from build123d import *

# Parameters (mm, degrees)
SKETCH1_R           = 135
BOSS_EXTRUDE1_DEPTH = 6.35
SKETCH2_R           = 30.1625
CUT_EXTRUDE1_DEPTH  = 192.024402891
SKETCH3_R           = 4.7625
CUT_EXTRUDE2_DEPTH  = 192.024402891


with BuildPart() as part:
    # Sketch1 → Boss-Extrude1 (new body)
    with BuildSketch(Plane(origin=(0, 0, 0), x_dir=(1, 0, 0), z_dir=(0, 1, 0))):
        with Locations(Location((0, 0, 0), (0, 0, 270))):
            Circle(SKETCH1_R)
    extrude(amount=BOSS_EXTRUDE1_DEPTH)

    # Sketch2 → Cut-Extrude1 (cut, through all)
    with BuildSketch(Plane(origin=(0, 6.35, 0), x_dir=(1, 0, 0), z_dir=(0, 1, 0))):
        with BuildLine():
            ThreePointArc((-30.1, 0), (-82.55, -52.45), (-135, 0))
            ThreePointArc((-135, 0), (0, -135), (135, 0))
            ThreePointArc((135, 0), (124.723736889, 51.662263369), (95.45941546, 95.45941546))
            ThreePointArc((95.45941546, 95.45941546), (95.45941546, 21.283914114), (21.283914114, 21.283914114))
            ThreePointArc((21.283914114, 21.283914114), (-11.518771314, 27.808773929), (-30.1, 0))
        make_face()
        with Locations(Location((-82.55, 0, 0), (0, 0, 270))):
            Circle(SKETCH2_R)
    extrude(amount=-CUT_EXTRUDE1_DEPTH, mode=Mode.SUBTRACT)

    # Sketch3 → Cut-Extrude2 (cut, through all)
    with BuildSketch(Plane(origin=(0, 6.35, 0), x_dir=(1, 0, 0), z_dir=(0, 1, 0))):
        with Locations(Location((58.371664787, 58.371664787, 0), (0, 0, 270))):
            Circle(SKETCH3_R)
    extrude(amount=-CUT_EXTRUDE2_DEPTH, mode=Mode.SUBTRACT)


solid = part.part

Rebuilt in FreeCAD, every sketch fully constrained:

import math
import FreeCAD as App
import Part
import Sketcher

doc = App.newDocument("Part")
body = doc.addObject("PartDesign::Body", "Body")

# Sketch on XZ plane
sketch1 = doc.addObject("Sketcher::SketchObject", "Sketch")
body.addObject(sketch1)
sketch1.AttachmentSupport = (doc.XZ_Plane, [""])
sketch1.MapMode = "FlatFace"
sketch1.addGeometry(Part.Circle(App.Vector(0, 0, 0), App.Vector(0, 0, 1), 135), False)
sketch1.addConstraint([
    Sketcher.Constraint("Coincident", 0, 3, -1, 1),
    Sketcher.Constraint("Diameter", 0, 270.0),
])
pad1 = doc.addObject("PartDesign::Pad", "Pad")
body.addObject(pad1)
pad1.Profile = sketch1
pad1.Length = 6.35
pad1.Reversed = True

# Sketch on XZ plane
sketch2 = doc.addObject("Sketcher::SketchObject", "Sketch001")
body.addObject(sketch2)
sketch2.AttachmentSupport = (doc.XZ_Plane, [""])
sketch2.MapMode = "FlatFace"
sketch2.AttachmentOffset = App.Placement(App.Vector(0, 0, -6.35), App.Rotation())
sketch2.addGeometry([
    Part.ArcOfCircle(Part.Circle(App.Vector(-82.55, 0, 0), App.Vector(0, 0, 1), 52.45), math.radians(0), math.radians(180)),  # 0
    Part.ArcOfCircle(Part.Circle(App.Vector(0, 0, 0), App.Vector(0, 0, 1), 135), math.radians(0), math.radians(180)),  # 1
    Part.ArcOfCircle(Part.Circle(App.Vector(0, 0, 0), App.Vector(0, 0, 1), 135), math.radians(-45), math.radians(0)),  # 2
    Part.ArcOfCircle(Part.Circle(App.Vector(58.371665, -58.371665, 0), App.Vector(0, 0, 1), 52.45), math.radians(-45), math.radians(135)),  # 3
    Part.ArcOfCircle(Part.Circle(App.Vector(0, 0, 0), App.Vector(0, 0, 1), 30.1), math.radians(180), math.radians(315)),  # 4
    Part.Circle(App.Vector(-82.55, 0, 0), App.Vector(0, 0, 1), 30.1625),  # 5
], False)
sketch2.addConstraint([
    Sketcher.Constraint("Tangent", 0, 2, 1, 2),
    Sketcher.Constraint("Tangent", 1, 1, 2, 2),
    Sketcher.Constraint("Tangent", 2, 1, 3, 1),
    Sketcher.Constraint("Tangent", 3, 2, 4, 2),
    Sketcher.Constraint("Tangent", 4, 1, 0, 1),
    Sketcher.Constraint("Coincident", 1, 3, -1, 1),
    Sketcher.Constraint("Coincident", 4, 3, -1, 1),
    Sketcher.Constraint("Coincident", 5, 3, 0, 3),
    Sketcher.Constraint("Equal", 1, 2),
    Sketcher.Constraint("PointOnObject", 0, 3, -1),
    Sketcher.Constraint("PointOnObject", 1, 1, -1),
    Sketcher.Constraint("Radius", 1, 135.0),
    Sketcher.Constraint("Radius", 4, 30.1),
    Sketcher.Constraint("Diameter", 5, 60.325),
    Sketcher.Constraint("DistanceX", 3, 2, 2, 1, 74.175501),
])
pocket1 = doc.addObject("PartDesign::Pocket", "Pocket")
body.addObject(pocket1)
pocket1.Profile = sketch2
pocket1.Type = "ThroughAll"
pocket1.Reversed = True

# Sketch on XZ plane
sketch3 = doc.addObject("Sketcher::SketchObject", "Sketch002")
body.addObject(sketch3)
sketch3.AttachmentSupport = (doc.XZ_Plane, [""])
sketch3.MapMode = "FlatFace"
sketch3.AttachmentOffset = App.Placement(App.Vector(0, 0, -6.35), App.Rotation())
sketch3.addGeometry(Part.Circle(App.Vector(58.371665, -58.371665, 0), App.Vector(0, 0, 1), 4.7625), False)
sketch3.addConstraint([
    Sketcher.Constraint("Diameter", 0, 9.525),
    Sketcher.Constraint("DistanceX", -1, 1, 0, 3, 58.371665),
    Sketcher.Constraint("DistanceY", 0, 3, -1, 1, 58.371665),
])
pocket2 = doc.addObject("PartDesign::Pocket", "Pocket001")
body.addObject(pocket2)
pocket2.Profile = sketch3
pocket2.Type = "ThroughAll"
pocket2.Reversed = True

doc.recompute()
